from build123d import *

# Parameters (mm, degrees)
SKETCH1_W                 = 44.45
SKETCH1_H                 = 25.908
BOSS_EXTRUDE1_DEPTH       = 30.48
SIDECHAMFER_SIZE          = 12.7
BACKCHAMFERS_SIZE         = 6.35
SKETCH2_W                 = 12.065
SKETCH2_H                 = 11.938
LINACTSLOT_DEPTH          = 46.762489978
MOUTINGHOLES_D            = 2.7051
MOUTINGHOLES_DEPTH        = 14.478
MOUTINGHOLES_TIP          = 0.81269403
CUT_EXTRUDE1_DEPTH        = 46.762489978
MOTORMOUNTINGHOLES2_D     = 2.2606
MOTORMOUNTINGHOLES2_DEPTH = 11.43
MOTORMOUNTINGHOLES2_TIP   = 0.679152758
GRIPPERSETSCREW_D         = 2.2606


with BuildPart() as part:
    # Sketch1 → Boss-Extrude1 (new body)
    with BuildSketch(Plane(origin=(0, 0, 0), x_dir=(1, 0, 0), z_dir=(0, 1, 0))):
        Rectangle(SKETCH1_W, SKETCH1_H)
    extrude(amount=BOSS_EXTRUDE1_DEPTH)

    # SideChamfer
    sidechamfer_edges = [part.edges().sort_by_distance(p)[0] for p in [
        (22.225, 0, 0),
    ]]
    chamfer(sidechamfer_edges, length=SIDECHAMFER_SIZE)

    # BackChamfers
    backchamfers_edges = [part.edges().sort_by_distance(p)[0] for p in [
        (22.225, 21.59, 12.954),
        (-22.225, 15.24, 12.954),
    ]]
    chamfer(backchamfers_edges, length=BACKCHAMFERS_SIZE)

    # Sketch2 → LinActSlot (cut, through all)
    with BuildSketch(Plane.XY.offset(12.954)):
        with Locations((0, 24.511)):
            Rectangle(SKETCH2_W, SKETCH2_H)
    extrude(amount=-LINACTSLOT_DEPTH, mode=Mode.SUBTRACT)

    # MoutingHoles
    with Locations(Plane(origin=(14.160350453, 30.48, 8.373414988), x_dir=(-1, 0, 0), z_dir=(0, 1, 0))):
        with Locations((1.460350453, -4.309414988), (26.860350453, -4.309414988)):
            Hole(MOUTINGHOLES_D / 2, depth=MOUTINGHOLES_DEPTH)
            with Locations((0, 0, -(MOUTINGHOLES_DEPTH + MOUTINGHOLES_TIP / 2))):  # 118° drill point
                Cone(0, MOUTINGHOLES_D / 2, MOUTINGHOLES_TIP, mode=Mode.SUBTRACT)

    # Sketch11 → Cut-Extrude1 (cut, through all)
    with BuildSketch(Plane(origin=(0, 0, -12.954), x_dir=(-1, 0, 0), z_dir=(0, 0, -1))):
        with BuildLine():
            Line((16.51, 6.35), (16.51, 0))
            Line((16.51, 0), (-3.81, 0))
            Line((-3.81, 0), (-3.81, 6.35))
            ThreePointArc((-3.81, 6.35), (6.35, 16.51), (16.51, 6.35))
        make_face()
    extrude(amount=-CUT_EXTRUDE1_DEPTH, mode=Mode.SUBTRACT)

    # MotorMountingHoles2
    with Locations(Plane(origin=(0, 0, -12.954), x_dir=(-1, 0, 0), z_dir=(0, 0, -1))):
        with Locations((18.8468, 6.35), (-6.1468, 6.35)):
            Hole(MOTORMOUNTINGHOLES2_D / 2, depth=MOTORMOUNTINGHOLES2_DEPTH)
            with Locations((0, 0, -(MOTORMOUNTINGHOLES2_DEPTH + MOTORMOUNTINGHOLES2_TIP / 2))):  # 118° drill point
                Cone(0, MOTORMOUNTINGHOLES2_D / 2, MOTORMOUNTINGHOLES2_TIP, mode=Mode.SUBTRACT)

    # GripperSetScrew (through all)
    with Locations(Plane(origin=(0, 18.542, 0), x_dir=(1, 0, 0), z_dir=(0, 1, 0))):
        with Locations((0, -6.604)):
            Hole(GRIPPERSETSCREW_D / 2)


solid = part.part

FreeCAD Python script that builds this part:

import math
import FreeCAD as App
import Part
import Sketcher
from FreeCAD import Vector
Q = App.Units.Quantity


def edges_at(feature, points):
    """Names of the edges that pass closest to the given points."""
    edges = feature.Shape.Edges
    near = lambda p: min(range(len(edges)), key=lambda i: edges[i].distToShape(Part.Vertex(*p))[0])
    return sorted({f"Edge{near(p) + 1}" for p in points})

doc = App.newDocument("Part")
body = doc.addObject("PartDesign::Body", "Body")

# Sketch on XZ plane
sketch1 = body.newObject("Sketcher::SketchObject", "Sketch")
sketch1.AttachmentSupport = (doc.getObject("XZ_Plane"), [""])
sketch1.MapMode = "FlatFace"
sketch1.addGeometry(Part.LineSegment(Vector(-22, -13, 0), Vector(-22, 13, 0)), False)
sketch1.addGeometry(Part.LineSegment(Vector(-22, 13, 0), Vector(22, 13, 0)), False)
sketch1.addGeometry(Part.LineSegment(Vector(22, 13, 0), Vector(22, -13, 0)), False)
sketch1.addGeometry(Part.LineSegment(Vector(22, -13, 0), Vector(-22, -13, 0)), False)
sketch1.addConstraint(Sketcher.Constraint("Coincident", 0, 2, 1, 1))
sketch1.addConstraint(Sketcher.Constraint("Coincident", 1, 2, 2, 1))
sketch1.addConstraint(Sketcher.Constraint("Coincident", 2, 2, 3, 1))
sketch1.addConstraint(Sketcher.Constraint("Coincident", 3, 2, 0, 1))
sketch1.addConstraint(Sketcher.Constraint("Vertical", 0))
sketch1.addConstraint(Sketcher.Constraint("Horizontal", 1))
sketch1.addConstraint(Sketcher.Constraint("Vertical", 2))
sketch1.addConstraint(Sketcher.Constraint("Horizontal", 3))
sketch1.addConstraint(Sketcher.Constraint("Symmetric", 0, 2, 2, 2, -1, 1))
sketch1.addConstraint(Sketcher.Constraint("DistanceX", 1, 1, 1, 2, Q("1.75 in")))
sketch1.addConstraint(Sketcher.Constraint("DistanceY", 0, 1, 0, 2, Q("1.02 in")))
pad1 = body.newObject("PartDesign::Pad", "Pad")
pad1.Profile = sketch1
pad1.Length = Q("1.2 in")
pad1.Reversed = True
doc.recompute()

chamfer = body.newObject("PartDesign::Chamfer", "Chamfer")
chamfer.Base = (pad1, edges_at(pad1, [(22.225, 0, 0)]))
chamfer.Size = Q("0.5 in")
doc.recompute()

chamfer2 = body.newObject("PartDesign::Chamfer", "Chamfer001")
chamfer2.Base = (chamfer, edges_at(chamfer, [(22.225, 21.59, 12.954), (-22.225, 15.24, 12.954)]))
chamfer2.Size = Q("0.25 in")

# Sketch on XY plane
sketch2 = body.newObject("Sketcher::SketchObject", "Sketch001")
sketch2.AttachmentSupport = (doc.getObject("XY_Plane"), [""])
sketch2.MapMode = "FlatFace"
sketch2.AttachmentOffset = App.Placement(Vector(0, 0, 0.51 * 25.4), App.Rotation())
sketch2.addGeometry(Part.LineSegment(Vector(-6, 30, 0), Vector(-6, 19, 0)), False)
sketch2.addGeometry(Part.LineSegment(Vector(-6, 19, 0), Vector(6, 19, 0)), False)
sketch2.addGeometry(Part.LineSegment(Vector(6, 19, 0), Vector(6, 30, 0)), False)
sketch2.addGeometry(Part.LineSegment(Vector(6, 30, 0), Vector(-6, 30, 0)), False)
sketch2.addConstraint(Sketcher.Constraint("Coincident", 0, 2, 1, 1))
sketch2.addConstraint(Sketcher.Constraint("Coincident", 1, 2, 2, 1))
sketch2.addConstraint(Sketcher.Constraint("Coincident", 2, 2, 3, 1))
sketch2.addConstraint(Sketcher.Constraint("Coincident", 3, 2, 0, 1))
sketch2.addConstraint(Sketcher.Constraint("Vertical", 0))
sketch2.addConstraint(Sketcher.Constraint("Horizontal", 1))
sketch2.addConstraint(Sketcher.Constraint("Vertical", 2))
sketch2.addConstraint(Sketcher.Constraint("Horizontal", 3))
sketch2.addConstraint(Sketcher.Constraint("DistanceY", 0, 2, 0, 1, Q("0.47 in")))
sketch2.addConstraint(Sketcher.Constraint("DistanceY", -1, 1, 2, 2, Q("1.2 in")))
sketch2.addConstraint(Sketcher.Constraint("DistanceX", 1, 1, 1, 2, Q("0.475 in")))
sketch2.addConstraint(Sketcher.Constraint("DistanceX", 0, 2, -1, 1, Q("0.2375 in")))
pocket1 = body.newObject("PartDesign::Pocket", "Pocket")
pocket1.Profile = sketch2
pocket1.Type = "ThroughAll"

# Sketch on XZ plane
sketch3 = body.newObject("Sketcher::SketchObject", "Sketch002")
sketch3.AttachmentSupport = (doc.getObject("XZ_Plane"), [""])
sketch3.MapMode = "FlatFace"
sketch3.AttachmentOffset = App.Placement(Vector(0, 0, -1.2 * 25.4), App.Rotation())
sketch3.addGeometry(Part.Circle(Vector(12.7, 4.1, 0), Vector(0, 0, 1), 1.4), False)
sketch3.addGeometry(Part.Circle(Vector(-12.7, 4.1, 0), Vector(0, 0, 1), 1.4), False)
sketch3.addConstraint(Sketcher.Constraint("Equal", 0, 1))
sketch3.addConstraint(Sketcher.Constraint("Symmetric", 0, 3, 1, 3, -2))
sketch3.addConstraint(Sketcher.Constraint("DistanceX", 1, 3, 0, 3, Q("1 in")))
sketch3.addConstraint(Sketcher.Constraint("Diameter", 0, Q("0.1065 in")))
sketch3.addConstraint(Sketcher.Constraint("DistanceY", -1, 1, 0, 3, Q("0.16 in")))
doc.recompute()
hole = body.newObject("PartDesign::Hole", "Hole")
hole.Profile = sketch3
hole.ThreadType = "None"
hole.Diameter = Q("0.1065 in")
hole.DepthType = "Dimension"
hole.Depth = Q("0.57 in")
hole.DrillPoint = "Angled"
hole.DrillPointAngle = 118
hole.Reversed = True

# Sketch on XY plane
sketch4 = body.newObject("Sketcher::SketchObject", "Sketch003")
sketch4.AttachmentSupport = (doc.getObject("XY_Plane"), [""])
sketch4.MapMode = "FlatFace"
sketch4.AttachmentOffset = App.Placement(Vector(0, 0, -0.51 * 25.4), App.Rotation())
sketch4.addGeometry(Part.LineSegment(Vector(-17, 0, 0), Vector(-17, 6, 0)), False)
sketch4.addGeometry(Part.ArcOfCircle(Part.Circle(Vector(-6, 6, 0), Vector(0, 0, 1), 10), math.radians(0), math.radians(180)), False)
sketch4.addGeometry(Part.LineSegment(Vector(4, 6, 0), Vector(4, 0, 0)), False)
sketch4.addGeometry(Part.LineSegment(Vector(4, 0, 0), Vector(-17, 0, 0)), False)
sketch4.addConstraint(Sketcher.Constraint("Tangent", 0, 2, 1, 2))
sketch4.addConstraint(Sketcher.Constraint("Tangent", 1, 1, 2, 1))
sketch4.addConstraint(Sketcher.Constraint("Coincident", 2, 2, 3, 1))
sketch4.addConstraint(Sketcher.Constraint("Coincident", 3, 2, 0, 1))
sketch4.addConstraint(Sketcher.Constraint("Vertical", 0))
sketch4.addConstraint(Sketcher.Constraint("Vertical", 2))
sketch4.addConstraint(Sketcher.Constraint("Horizontal", 3))
sketch4.addConstraint(Sketcher.Constraint("PointOnObject", 2, 2, -1))
sketch4.addConstraint(Sketcher.Constraint("Radius", 1, Q("0.4 in")))
sketch4.addConstraint(Sketcher.Constraint("DistanceY", 0, 1, 0, 2, Q("0.25 in")))
sketch4.addConstraint(Sketcher.Constraint("DistanceX", 1, 3, -1, 1, Q("0.25 in")))
pocket2 = body.newObject("PartDesign::Pocket", "Pocket001")
pocket2.Profile = sketch4
pocket2.Type = "ThroughAll"
pocket2.Reversed = True

# Sketch on XY plane
sketch5 = body.newObject("Sketcher::SketchObject", "Sketch004")
sketch5.AttachmentSupport = (doc.getObject("XY_Plane"), [""])
sketch5.MapMode = "FlatFace"
sketch5.AttachmentOffset = App.Placement(Vector(0, 0, -0.51 * 25.4), App.Rotation())
sketch5.addGeometry(Part.Circle(Vector(-18.8, 6.3, 0), Vector(0, 0, 1), 1.1), False)
sketch5.addGeometry(Part.Circle(Vector(6.1, 6.3, 0), Vector(0, 0, 1), 1.1), False)
sketch5.addConstraint(Sketcher.Constraint("Equal", 0, 1))
sketch5.addConstraint(Sketcher.Constraint("Horizontal", 0, 3, 1, 3))
sketch5.addConstraint(Sketcher.Constraint("Diameter", 0, Q("0.089 in")))
sketch5.addConstraint(Sketcher.Constraint("DistanceY", -1, 1, 0, 3, Q("0.25 in")))
sketch5.addConstraint(Sketcher.Constraint("DistanceX", 0, 3, -1, 1, Q("0.742 in")))
sketch5.addConstraint(Sketcher.Constraint("DistanceX", -1, 1, 1, 3, Q("0.242 in")))
doc.recompute()
hole2 = body.newObject("PartDesign::Hole", "Hole001")
hole2.Profile = sketch5
hole2.ThreadType = "None"
hole2.Diameter = Q("0.089 in")
hole2.DepthType = "Dimension"
hole2.Depth = Q("0.45 in")
hole2.DrillPoint = "Angled"
hole2.DrillPointAngle = 118
hole2.Reversed = True

# Sketch on XZ plane
sketch6 = body.newObject("Sketcher::SketchObject", "Sketch005")
sketch6.AttachmentSupport = (doc.getObject("XZ_Plane"), [""])
sketch6.MapMode = "FlatFace"
sketch6.AttachmentOffset = App.Placement(Vector(0, 0, -0.73 * 25.4), App.Rotation())
sketch6.addGeometry(Part.Circle(Vector(0, 6.6, 0), Vector(0, 0, 1), 1.1), False)
sketch6.addConstraint(Sketcher.Constraint("PointOnObject", 0, 3, -2))
sketch6.addConstraint(Sketcher.Constraint("Diameter", 0, Q("0.089 in")))
sketch6.addConstraint(Sketcher.Constraint("DistanceY", -1, 1, 0, 3, Q("0.26 in")))
doc.recompute()
hole3 = body.newObject("PartDesign::Hole", "Hole002")
hole3.Profile = sketch6
hole3.ThreadType = "None"
hole3.Diameter = Q("0.089 in")
hole3.DepthType = "ThroughAll"
hole3.Reversed = True

doc.recompute()
